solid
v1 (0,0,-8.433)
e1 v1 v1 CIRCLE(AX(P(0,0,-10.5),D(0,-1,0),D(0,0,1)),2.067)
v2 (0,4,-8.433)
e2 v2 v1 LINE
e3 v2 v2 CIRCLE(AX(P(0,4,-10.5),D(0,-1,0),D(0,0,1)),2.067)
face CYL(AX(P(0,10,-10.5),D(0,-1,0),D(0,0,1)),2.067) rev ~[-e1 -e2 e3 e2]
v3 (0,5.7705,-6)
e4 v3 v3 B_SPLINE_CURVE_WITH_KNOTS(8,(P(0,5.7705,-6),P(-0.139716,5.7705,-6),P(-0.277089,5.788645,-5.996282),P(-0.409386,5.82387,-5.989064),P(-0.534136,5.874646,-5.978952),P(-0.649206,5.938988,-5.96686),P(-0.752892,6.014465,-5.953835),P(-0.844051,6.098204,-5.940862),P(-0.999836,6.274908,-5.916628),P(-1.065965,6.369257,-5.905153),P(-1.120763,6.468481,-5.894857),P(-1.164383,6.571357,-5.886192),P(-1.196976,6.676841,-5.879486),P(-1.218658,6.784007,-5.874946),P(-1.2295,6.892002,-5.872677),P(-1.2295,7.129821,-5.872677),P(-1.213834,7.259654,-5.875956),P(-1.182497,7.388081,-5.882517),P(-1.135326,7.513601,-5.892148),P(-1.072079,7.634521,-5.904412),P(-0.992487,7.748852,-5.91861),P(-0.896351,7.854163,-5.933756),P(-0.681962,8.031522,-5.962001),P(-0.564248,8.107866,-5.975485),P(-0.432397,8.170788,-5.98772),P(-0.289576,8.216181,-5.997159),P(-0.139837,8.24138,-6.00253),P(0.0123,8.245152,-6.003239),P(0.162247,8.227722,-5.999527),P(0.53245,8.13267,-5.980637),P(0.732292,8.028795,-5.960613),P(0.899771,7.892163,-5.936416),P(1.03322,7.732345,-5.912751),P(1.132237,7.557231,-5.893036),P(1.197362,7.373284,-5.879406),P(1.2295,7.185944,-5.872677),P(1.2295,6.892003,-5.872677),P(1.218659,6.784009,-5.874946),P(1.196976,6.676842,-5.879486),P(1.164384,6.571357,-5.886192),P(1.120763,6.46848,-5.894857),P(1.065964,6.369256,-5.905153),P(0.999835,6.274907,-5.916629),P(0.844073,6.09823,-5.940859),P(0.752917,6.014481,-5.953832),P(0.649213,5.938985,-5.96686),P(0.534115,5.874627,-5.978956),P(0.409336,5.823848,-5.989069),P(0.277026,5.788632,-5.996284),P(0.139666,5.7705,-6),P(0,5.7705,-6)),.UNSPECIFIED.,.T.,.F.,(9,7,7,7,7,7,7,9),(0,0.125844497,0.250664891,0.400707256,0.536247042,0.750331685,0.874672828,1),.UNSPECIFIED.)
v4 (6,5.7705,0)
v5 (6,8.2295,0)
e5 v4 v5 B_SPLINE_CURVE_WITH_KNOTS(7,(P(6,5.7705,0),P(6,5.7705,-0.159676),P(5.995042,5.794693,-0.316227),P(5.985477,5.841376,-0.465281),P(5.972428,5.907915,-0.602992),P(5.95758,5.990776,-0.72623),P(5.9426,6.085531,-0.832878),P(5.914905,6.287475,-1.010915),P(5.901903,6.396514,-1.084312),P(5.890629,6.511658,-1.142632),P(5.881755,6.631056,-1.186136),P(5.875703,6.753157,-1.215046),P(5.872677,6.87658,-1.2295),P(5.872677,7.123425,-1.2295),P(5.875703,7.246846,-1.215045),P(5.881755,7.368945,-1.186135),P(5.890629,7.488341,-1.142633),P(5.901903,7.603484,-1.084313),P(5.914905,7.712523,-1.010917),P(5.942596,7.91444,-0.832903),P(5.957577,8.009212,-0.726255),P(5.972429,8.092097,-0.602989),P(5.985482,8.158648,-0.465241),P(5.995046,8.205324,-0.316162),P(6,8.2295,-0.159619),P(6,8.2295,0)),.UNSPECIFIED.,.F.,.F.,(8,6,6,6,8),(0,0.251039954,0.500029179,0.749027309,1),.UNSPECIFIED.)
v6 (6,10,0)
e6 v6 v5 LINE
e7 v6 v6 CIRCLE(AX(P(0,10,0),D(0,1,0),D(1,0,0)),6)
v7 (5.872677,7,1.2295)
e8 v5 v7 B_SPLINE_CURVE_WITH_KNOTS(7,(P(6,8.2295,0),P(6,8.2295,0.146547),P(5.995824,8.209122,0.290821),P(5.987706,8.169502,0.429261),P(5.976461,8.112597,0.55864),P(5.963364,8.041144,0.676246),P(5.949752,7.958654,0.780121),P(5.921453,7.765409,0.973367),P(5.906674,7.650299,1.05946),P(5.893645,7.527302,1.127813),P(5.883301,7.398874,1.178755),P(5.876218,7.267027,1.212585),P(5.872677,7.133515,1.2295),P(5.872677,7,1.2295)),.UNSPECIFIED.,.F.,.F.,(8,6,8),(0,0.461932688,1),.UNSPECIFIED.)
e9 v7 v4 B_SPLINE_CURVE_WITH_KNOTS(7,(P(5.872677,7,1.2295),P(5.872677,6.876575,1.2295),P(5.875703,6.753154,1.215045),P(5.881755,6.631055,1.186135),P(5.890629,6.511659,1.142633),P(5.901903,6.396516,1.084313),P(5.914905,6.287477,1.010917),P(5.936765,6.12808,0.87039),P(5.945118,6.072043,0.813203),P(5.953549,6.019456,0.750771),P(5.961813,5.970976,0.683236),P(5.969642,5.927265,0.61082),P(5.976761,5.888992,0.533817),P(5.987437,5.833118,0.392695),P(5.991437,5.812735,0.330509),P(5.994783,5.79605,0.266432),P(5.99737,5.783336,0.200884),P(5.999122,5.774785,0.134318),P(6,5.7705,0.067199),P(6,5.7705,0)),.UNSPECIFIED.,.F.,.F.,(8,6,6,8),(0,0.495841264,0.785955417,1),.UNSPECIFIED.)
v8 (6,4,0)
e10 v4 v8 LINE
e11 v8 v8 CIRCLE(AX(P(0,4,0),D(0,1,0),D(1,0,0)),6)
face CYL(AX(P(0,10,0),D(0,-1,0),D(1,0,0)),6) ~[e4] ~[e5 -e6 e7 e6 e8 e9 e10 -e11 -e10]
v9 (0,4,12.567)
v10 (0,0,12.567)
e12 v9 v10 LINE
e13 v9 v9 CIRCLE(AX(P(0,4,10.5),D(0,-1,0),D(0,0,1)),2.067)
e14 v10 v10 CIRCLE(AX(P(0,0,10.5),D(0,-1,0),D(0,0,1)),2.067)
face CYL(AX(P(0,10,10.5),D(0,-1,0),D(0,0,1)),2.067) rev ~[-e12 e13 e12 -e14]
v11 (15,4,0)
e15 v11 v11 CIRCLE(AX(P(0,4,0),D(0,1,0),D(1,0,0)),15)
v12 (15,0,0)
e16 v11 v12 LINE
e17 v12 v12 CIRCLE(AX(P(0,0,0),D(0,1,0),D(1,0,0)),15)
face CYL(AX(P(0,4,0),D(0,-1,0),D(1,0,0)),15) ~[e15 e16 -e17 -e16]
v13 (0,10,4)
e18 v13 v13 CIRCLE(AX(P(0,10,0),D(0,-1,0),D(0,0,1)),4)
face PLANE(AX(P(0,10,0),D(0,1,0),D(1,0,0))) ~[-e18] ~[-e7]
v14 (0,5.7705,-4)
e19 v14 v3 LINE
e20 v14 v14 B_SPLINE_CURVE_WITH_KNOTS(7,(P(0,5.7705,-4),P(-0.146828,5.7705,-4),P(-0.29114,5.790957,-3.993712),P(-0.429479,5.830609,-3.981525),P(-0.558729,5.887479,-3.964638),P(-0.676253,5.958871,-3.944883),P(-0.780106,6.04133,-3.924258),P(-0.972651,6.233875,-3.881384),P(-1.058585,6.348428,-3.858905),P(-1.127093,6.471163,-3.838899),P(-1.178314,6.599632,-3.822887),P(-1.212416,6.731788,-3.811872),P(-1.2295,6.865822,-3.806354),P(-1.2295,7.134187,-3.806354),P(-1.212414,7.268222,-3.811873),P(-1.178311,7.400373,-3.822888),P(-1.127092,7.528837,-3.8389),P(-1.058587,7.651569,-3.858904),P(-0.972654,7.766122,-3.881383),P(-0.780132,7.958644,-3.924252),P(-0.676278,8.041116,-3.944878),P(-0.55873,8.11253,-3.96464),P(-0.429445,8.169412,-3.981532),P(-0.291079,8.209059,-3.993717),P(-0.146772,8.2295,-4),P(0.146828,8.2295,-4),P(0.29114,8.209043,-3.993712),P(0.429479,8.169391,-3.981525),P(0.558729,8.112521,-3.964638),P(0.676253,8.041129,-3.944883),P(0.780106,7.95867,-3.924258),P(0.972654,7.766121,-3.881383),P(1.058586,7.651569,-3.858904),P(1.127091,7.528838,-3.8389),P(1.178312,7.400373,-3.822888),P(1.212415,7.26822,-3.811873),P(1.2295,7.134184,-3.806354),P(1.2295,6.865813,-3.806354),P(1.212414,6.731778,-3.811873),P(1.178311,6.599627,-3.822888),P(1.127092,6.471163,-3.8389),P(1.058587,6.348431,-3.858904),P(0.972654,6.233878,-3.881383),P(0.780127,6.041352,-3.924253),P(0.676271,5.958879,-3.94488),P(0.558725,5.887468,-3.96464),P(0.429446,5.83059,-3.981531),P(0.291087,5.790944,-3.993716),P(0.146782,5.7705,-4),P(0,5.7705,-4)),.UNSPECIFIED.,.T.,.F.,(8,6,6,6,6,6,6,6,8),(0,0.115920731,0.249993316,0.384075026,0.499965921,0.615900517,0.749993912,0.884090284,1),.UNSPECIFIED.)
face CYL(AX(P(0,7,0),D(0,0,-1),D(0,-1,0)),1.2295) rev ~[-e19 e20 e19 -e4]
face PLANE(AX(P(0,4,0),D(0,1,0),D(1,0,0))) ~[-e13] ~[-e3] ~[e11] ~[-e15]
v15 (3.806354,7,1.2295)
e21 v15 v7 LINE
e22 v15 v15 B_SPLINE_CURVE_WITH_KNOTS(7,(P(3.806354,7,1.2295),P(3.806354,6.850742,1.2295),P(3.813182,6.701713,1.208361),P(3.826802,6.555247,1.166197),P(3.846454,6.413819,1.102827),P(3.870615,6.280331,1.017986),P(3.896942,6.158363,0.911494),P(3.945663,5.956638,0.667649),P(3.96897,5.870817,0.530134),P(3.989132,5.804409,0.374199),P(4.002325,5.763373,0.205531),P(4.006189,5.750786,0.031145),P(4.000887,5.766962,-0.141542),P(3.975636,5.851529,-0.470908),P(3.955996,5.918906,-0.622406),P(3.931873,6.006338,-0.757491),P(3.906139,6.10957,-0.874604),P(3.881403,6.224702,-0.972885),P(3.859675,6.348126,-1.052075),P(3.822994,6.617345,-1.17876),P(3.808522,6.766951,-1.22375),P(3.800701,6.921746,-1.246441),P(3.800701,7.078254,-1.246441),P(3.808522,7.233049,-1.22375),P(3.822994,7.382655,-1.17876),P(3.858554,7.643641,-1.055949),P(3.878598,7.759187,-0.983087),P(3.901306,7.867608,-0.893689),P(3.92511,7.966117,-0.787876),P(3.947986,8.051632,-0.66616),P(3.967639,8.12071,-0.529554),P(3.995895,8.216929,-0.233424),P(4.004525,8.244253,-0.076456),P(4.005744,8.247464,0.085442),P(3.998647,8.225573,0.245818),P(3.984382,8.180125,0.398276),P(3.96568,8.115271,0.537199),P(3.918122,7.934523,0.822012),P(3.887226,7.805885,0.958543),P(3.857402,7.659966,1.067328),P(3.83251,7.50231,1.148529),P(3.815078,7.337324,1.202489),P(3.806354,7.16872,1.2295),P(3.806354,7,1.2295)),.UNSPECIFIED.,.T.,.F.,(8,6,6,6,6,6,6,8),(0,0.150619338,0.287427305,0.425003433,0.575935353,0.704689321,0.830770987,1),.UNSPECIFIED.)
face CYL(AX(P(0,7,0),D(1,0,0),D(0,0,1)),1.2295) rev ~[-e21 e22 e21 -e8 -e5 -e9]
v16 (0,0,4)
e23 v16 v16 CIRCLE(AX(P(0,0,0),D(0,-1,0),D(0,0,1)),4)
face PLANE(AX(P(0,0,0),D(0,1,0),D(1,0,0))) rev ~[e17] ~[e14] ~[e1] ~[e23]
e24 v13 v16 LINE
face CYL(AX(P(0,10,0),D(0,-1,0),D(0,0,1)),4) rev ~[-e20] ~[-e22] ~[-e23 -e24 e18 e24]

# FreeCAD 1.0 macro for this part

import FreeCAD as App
import Part
import Sketcher
Q = App.Units.Quantity

doc = App.newDocument("Part")
body = doc.addObject("PartDesign::Body", "Body")

# Sketch on XY plane
sketch1 = doc.addObject("Sketcher::SketchObject", "Sketch")
body.addObject(sketch1)
sketch1.AttachmentSupport = (doc.XY_Plane, [""])
sketch1.MapMode = "FlatFace"
sketch1.addGeometry([
    Part.LineSegment(App.Vector(6, 10, 0), App.Vector(0, 10, 0)),  # 0
    Part.LineSegment(App.Vector(0, 10, 0), App.Vector(0, 0, 0)),  # 1
    Part.LineSegment(App.Vector(0, 0, 0), App.Vector(15, 0, 0)),  # 2
    Part.LineSegment(App.Vector(15, 0, 0), App.Vector(15, 4, 0)),  # 3
    Part.LineSegment(App.Vector(15, 4, 0), App.Vector(6, 4, 0)),  # 4
    Part.LineSegment(App.Vector(6, 4, 0), App.Vector(6, 10, 0)),  # 5
], False)
sketch1.addConstraint([
    Sketcher.Constraint("Coincident", 0, 2, 1, 1),
    Sketcher.Constraint("Coincident", 1, 2, 2, 1),
    Sketcher.Constraint("Coincident", 2, 2, 3, 1),
    Sketcher.Constraint("Coincident", 3, 2, 4, 1),
    Sketcher.Constraint("Coincident", 4, 2, 5, 1),
    Sketcher.Constraint("Coincident", 5, 2, 0, 1),
    Sketcher.Constraint("Horizontal", 0),
    Sketcher.Constraint("Vertical", 1),
    Sketcher.Constraint("Horizontal", 2),
    Sketcher.Constraint("Vertical", 3),
    Sketcher.Constraint("Horizontal", 4),
    Sketcher.Constraint("Vertical", 5),
    Sketcher.Constraint("Coincident", 1, 2, -1, 1),
    Sketcher.Constraint("Equal", 0, 5),
    Sketcher.Constraint("DistanceX", 0, 2, 0, 1, Q("6 mm")),
    Sketcher.Constraint("DistanceX", 2, 1, 2, 2, Q("15 mm")),
    Sketcher.Constraint("DistanceY", 1, 2, 1, 1, Q("10 mm")),
])
revolution = doc.addObject("PartDesign::Revolution", "Revolution")
body.addObject(revolution)
revolution.Profile = sketch1
revolution.ReferenceAxis = (sketch1, ["V_Axis"])
revolution.Angle = 360

# Sketch on XZ plane
sketch2 = doc.addObject("Sketcher::SketchObject", "Sketch001")
body.addObject(sketch2)
sketch2.AttachmentSupport = (doc.XZ_Plane, [""])
sketch2.MapMode = "FlatFace"
sketch2.AttachmentOffset = App.Placement(App.Vector(0, 0, -10), App.Rotation())
sketch2.addGeometry(Part.Circle(App.Vector(0, 0, 0), App.Vector(0, 0, 1), 4), False)
sketch2.addConstraint([
    Sketcher.Constraint("Coincident", 0, 3, -1, 1),
    Sketcher.Constraint("Diameter", 0, Q("8 mm")),
])
doc.recompute()
hole = doc.addObject("PartDesign::Hole", "Hole")
body.addObject(hole)
hole.Profile = sketch2
hole.ThreadType = "None"
hole.Diameter = 8
hole.DepthType = "ThroughAll"
hole.Reversed = True

# Sketch on XZ plane
sketch3 = doc.addObject("Sketcher::SketchObject", "Sketch002")
body.addObject(sketch3)
sketch3.AttachmentSupport = (doc.XZ_Plane, [""])
sketch3.MapMode = "FlatFace"
sketch3.AttachmentOffset = App.Placement(App.Vector(0, 0, -10), App.Rotation())
sketch3.addGeometry([
    Part.Circle(App.Vector(0, -10.5, 0), App.Vector(0, 0, 1), 2.1),
    Part.Circle(App.Vector(0, 10.5, 0), App.Vector(0, 0, 1), 2.1),
], False)
sketch3.addConstraint([
    Sketcher.Constraint("Equal", 0, 1),
    Sketcher.Constraint("Symmetric", 0, 3, 1, 3, -1, 1),
    Sketcher.Constraint("PointOnObject", 0, 3, -2),
    Sketcher.Constraint("Diameter", 0, Q("4.134 mm")),
    Sketcher.Constraint("DistanceY", 0, 3, 1, 3, Q("21 mm")),
])
doc.recompute()
hole2 = doc.addObject("PartDesign::Hole", "Hole001")
body.addObject(hole2)
hole2.Profile = sketch3
hole2.ThreadType = "None"
hole2.Diameter = 4.134
hole2.DepthType = "ThroughAll"
hole2.Reversed = True

# Sketch on YZ plane
sketch4 = doc.addObject("Sketcher::SketchObject", "Sketch003")
body.addObject(sketch4)
sketch4.AttachmentSupport = (doc.YZ_Plane, [""])
sketch4.MapMode = "FlatFace"
sketch4.addGeometry(Part.Circle(App.Vector(7, 0, 0), App.Vector(0, 0, 1), 1.2), False)
sketch4.addConstraint([
    Sketcher.Constraint("PointOnObject", 0, 3, -1),
    Sketcher.Constraint("Diameter", 0, Q("2.459 mm")),
    Sketcher.Constraint("DistanceX", -1, 1, 0, 3, Q("7 mm")),
])
doc.recompute()
hole3 = doc.addObject("PartDesign::Hole", "Hole002")
body.addObject(hole3)
hole3.Profile = sketch4
hole3.ThreadType = "None"
hole3.Diameter = 2.459
hole3.DepthType = "ThroughAll"
hole3.Reversed = True

# Sketch on XY plane
sketch5 = doc.addObject("Sketcher::SketchObject", "Sketch004")
body.addObject(sketch5)
sketch5.AttachmentSupport = (doc.XY_Plane, [""])
sketch5.MapMode = "FlatFace"
sketch5.addGeometry(Part.Circle(App.Vector(0, 7, 0), App.Vector(0, 0, 1), 1.2), False)
sketch5.addConstraint([
    Sketcher.Constraint("PointOnObject", 0, 3, -2),
    Sketcher.Constraint("Diameter", 0, Q("2.459 mm")),
    Sketcher.Constraint("DistanceY", -1, 1, 0, 3, Q("7 mm")),
])
doc.recompute()
hole4 = doc.addObject("PartDesign::Hole", "Hole003")
body.addObject(hole4)
hole4.Profile = sketch5
hole4.ThreadType = "None"
hole4.Diameter = 2.459
hole4.DepthType = "ThroughAll"

doc.recompute()
